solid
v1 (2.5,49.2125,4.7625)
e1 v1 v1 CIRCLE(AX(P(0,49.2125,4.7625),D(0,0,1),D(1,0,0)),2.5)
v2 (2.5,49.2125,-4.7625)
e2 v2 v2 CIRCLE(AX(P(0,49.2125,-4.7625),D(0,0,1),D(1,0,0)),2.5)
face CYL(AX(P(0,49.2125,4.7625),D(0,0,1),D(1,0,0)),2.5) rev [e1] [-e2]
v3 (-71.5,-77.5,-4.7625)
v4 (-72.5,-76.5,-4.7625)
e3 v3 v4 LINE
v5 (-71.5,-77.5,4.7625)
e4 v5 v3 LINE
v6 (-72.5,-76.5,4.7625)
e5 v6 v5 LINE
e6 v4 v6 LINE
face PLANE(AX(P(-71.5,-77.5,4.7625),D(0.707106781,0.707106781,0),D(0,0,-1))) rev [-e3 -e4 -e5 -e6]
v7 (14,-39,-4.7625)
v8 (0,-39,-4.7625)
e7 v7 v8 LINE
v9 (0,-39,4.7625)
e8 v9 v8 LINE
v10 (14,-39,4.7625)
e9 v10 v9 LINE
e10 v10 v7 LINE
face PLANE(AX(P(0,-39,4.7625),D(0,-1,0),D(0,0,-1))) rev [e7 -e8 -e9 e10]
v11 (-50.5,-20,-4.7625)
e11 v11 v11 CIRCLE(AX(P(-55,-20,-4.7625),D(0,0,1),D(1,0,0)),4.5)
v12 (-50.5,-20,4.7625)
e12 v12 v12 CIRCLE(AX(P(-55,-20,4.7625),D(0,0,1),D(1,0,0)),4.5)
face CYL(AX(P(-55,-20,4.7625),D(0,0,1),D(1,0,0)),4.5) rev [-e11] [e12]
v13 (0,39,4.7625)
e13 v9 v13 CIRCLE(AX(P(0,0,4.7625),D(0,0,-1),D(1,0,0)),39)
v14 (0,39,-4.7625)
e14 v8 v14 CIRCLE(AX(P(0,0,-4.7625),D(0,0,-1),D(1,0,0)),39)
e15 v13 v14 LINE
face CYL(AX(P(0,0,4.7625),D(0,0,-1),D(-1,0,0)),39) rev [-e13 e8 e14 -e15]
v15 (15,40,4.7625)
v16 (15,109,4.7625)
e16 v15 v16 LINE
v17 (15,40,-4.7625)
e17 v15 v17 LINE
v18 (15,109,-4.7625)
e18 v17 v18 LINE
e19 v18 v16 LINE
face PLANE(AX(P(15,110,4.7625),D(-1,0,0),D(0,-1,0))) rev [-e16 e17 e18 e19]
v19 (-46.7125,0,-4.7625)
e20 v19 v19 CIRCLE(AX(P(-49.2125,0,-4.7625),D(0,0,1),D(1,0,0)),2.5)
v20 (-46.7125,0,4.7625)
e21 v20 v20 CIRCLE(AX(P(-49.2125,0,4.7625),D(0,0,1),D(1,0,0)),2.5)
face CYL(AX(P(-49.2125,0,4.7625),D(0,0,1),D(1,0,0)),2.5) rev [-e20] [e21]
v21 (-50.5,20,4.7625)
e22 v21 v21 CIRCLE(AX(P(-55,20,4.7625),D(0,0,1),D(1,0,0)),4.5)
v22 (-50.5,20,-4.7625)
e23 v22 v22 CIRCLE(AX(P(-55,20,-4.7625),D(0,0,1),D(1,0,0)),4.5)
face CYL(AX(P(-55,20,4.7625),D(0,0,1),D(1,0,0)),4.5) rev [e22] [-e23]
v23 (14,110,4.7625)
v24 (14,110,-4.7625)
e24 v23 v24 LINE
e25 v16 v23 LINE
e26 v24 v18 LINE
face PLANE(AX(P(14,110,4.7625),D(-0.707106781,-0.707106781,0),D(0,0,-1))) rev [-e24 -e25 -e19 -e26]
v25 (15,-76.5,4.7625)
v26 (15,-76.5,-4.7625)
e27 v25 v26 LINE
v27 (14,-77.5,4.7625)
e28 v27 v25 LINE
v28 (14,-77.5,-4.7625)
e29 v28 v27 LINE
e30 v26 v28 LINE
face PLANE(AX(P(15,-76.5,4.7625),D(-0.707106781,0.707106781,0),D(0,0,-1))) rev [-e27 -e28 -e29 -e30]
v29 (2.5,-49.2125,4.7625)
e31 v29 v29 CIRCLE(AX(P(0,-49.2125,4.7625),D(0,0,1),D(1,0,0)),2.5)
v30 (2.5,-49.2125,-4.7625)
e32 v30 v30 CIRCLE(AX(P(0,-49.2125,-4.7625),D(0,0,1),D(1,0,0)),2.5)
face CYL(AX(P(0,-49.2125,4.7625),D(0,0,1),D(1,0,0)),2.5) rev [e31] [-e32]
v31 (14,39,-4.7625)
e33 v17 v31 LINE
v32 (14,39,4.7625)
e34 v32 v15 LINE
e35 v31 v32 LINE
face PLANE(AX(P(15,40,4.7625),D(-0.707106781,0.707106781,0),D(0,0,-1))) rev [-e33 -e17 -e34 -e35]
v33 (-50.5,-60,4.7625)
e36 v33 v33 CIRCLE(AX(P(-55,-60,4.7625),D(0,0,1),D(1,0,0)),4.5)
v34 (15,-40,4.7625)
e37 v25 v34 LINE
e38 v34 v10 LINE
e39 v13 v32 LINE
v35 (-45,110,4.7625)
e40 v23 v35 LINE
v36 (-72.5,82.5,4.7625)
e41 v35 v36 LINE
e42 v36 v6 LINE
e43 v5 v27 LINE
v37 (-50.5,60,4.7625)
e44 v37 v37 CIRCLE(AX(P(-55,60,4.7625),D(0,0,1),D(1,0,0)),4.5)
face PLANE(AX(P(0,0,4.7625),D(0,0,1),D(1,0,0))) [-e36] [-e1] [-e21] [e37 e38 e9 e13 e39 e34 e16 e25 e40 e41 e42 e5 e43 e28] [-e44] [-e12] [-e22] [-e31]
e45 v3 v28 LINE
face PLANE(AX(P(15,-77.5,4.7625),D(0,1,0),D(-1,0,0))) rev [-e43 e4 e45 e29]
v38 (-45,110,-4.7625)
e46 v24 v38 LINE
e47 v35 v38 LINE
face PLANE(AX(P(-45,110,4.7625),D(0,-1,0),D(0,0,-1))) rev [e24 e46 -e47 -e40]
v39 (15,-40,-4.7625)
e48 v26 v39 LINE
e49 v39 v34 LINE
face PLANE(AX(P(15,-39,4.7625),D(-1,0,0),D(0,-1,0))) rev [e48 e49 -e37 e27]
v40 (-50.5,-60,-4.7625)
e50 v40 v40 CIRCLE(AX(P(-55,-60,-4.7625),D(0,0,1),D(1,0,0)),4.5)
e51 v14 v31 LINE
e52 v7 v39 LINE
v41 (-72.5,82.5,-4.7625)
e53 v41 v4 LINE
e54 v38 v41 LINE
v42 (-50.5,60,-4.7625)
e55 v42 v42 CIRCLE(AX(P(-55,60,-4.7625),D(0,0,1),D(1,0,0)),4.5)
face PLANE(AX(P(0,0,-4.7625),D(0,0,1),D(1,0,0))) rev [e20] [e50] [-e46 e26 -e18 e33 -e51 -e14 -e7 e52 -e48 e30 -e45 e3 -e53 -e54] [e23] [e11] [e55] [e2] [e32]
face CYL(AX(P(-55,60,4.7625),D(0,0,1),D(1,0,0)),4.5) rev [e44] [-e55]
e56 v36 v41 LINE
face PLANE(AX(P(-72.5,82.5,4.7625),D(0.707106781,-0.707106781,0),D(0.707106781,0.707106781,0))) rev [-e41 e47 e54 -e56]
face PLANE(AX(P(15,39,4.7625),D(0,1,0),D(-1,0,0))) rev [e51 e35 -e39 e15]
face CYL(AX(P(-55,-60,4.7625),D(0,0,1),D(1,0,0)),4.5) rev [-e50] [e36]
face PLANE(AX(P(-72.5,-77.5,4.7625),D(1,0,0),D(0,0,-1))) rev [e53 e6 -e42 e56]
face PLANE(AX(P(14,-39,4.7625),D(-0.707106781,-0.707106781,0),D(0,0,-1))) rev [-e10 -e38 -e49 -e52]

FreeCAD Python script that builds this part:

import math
import FreeCAD as App
import Part
import Sketcher
Q = App.Units.Quantity


def edges_at(feature, points):
    """Names of the edges that pass closest to the given points."""
    edges = feature.Shape.Edges
    near = lambda p: min(range(len(edges)), key=lambda i: edges[i].distToShape(Part.Vertex(*p))[0])
    return sorted({f"Edge{near(p) + 1}" for p in points})

doc = App.newDocument("Part")
params = doc.addObject("Spreadsheet::Sheet", "Params")
for row, (alias, value) in enumerate([
    ("sketch1_radius", "39 mm"),
    ("sketch1_width", "15 mm"),
    ("sketch1_width2", "60 mm"),
    ("sketch1_height", "71 mm"),
    ("sketch1_height2", "160 mm"),
    ("pad1_length", "9.525 mm"),
    ("sketch2_diameter", "9 mm"),
    ("hole_diameter", "9 mm"),
    ("sketch3_diameter", "5 mm"),
    ("hole2_diameter", "5 mm"),
    ("chamfer_size", "1 mm"),
], start=1):
    params.set(f"A{row}", alias)
    params.set(f"B{row}", "=" + value)
    params.setAlias(f"B{row}", alias)

body = doc.addObject("PartDesign::Body", "Body")

sketch1 = doc.addObject("Sketcher::SketchObject", "Sketch")
body.addObject(sketch1)
sketch1.AttachmentSupport = (doc.XY_Plane, [""])
sketch1.MapMode = "FlatFace"
sketch1.addGeometry([
    Part.LineSegment(App.Vector(15, -39, 0), App.Vector(0, -39, 0)),
    Part.ArcOfCircle(Part.Circle(App.Vector(0, 0, 0), App.Vector(0, 0, 1), 39), math.radians(90), math.radians(270)),
    Part.LineSegment(App.Vector(0, 39, 0), App.Vector(15, 39, 0)),
    Part.LineSegment(App.Vector(15, 39, 0), App.Vector(15, 110, 0)),
    Part.LineSegment(App.Vector(15, 110, 0), App.Vector(-45, 110, 0)),
    Part.LineSegment(App.Vector(-45, 110, 0), App.Vector(-72, 82, 0)),
    Part.LineSegment(App.Vector(-72, 82, 0), App.Vector(-72, -78, 0)),
    Part.LineSegment(App.Vector(-72, -78, 0), App.Vector(15, -78, 0)),
    Part.LineSegment(App.Vector(15, -78, 0), App.Vector(15, -39, 0)),
], False)
sketch1.addConstraint([
    Sketcher.Constraint("Tangent", 0, 2, 1, 2),
    Sketcher.Constraint("Tangent", 1, 1, 2, 1),
    Sketcher.Constraint("Coincident", 2, 2, 3, 1),
    Sketcher.Constraint("Coincident", 3, 2, 4, 1),
    Sketcher.Constraint("Coincident", 4, 2, 5, 1),
    Sketcher.Constraint("Coincident", 5, 2, 6, 1),
    Sketcher.Constraint("Coincident", 6, 2, 7, 1),
    Sketcher.Constraint("Coincident", 7, 2, 8, 1),
    Sketcher.Constraint("Coincident", 8, 2, 0, 1),
    Sketcher.Constraint("Horizontal", 0),
    Sketcher.Constraint("Horizontal", 2),
    Sketcher.Constraint("Vertical", 3),
    Sketcher.Constraint("Horizontal", 4),
    Sketcher.Constraint("Vertical", 6),
    Sketcher.Constraint("Horizontal", 7),
    Sketcher.Constraint("Vertical", 8),
    Sketcher.Constraint("Coincident", 1, 3, -1, 1),
    Sketcher.Constraint("Vertical", 3, 2, 7, 2),
    Sketcher.Constraint("Radius", 1, 39.0),
    Sketcher.Constraint("DistanceX", 0, 2, 0, 1, 15.0),
    Sketcher.Constraint("DistanceX", 4, 2, 4, 1, 60.0),
    Sketcher.Constraint("DistanceY", 3, 1, 3, 2, 71.0),
    Sketcher.Constraint("DistanceY", 6, 2, 6, 1, 160.0),
    Sketcher.Constraint("Angle", 5, Q("-135 deg")),
    Sketcher.Constraint("DistanceX", 7, 1, 7, 2, 87.5),
])
sketch1.setExpression("Constraints[18]", "Params.sketch1_radius")
sketch1.setExpression("Constraints[19]", "Params.sketch1_width")
sketch1.setExpression("Constraints[20]", "Params.sketch1_width2")
sketch1.setExpression("Constraints[21]", "Params.sketch1_height")
sketch1.setExpression("Constraints[22]", "Params.sketch1_height2")
pad1 = doc.addObject("PartDesign::Pad", "Pad")
body.addObject(pad1)
pad1.Profile = sketch1
pad1.setExpression("Length", "Params.pad1_length")
pad1.Midplane = True

sketch2 = doc.addObject("Sketcher::SketchObject", "Sketch001")
body.addObject(sketch2)
sketch2.AttachmentSupport = (doc.XY_Plane, [""])
sketch2.MapMode = "FlatFace"
sketch2.AttachmentOffset = App.Placement(App.Vector(0, 0, 4.7625), App.Rotation())
sketch2.addGeometry([
    Part.Circle(App.Vector(-55, 60, 0), App.Vector(0, 0, 1), 4.5),
    Part.Circle(App.Vector(-55, 20, 0), App.Vector(0, 0, 1), 4.5),
    Part.Circle(App.Vector(-55, -20, 0), App.Vector(0, 0, 1), 4.5),
    Part.Circle(App.Vector(-55, -60, 0), App.Vector(0, 0, 1), 4.5),
], False)
sketch2.addConstraint([
    Sketcher.Constraint("Equal", 0, 1),
    Sketcher.Constraint("Equal", 1, 2),
    Sketcher.Constraint("Equal", 2, 3),
    Sketcher.Constraint("Symmetric", 1, 3, 2, 3, -1),
    Sketcher.Constraint("Symmetric", 0, 3, 3, 3, -1),
    Sketcher.Constraint("Vertical", 0, 3, 1, 3),
    Sketcher.Constraint("Diameter", 0, 9.0),
    Sketcher.Constraint("DistanceX", 0, 3, -1, 1, 55.0),
    Sketcher.Constraint("DistanceY", -1, 1, 0, 3, 60.0),
    Sketcher.Constraint("DistanceY", -1, 1, 1, 3, 20.0),
])
sketch2.setExpression("Constraints[6]", "Params.sketch2_diameter")
doc.recompute()
hole = doc.addObject("PartDesign::Hole", "Hole")
body.addObject(hole)
hole.Profile = sketch2
hole.ThreadType = "None"
hole.setExpression("Diameter", "Params.hole_diameter")
hole.DepthType = "ThroughAll"

sketch3 = doc.addObject("Sketcher::SketchObject", "Sketch002")
body.addObject(sketch3)
sketch3.AttachmentSupport = (doc.XY_Plane, [""])
sketch3.MapMode = "FlatFace"
sketch3.AttachmentOffset = App.Placement(App.Vector(0, 0, 4.7625), App.Rotation())
sketch3.addGeometry([
    Part.Circle(App.Vector(0, 49.2, 0), App.Vector(0, 0, 1), 2.5),
    Part.Circle(App.Vector(-49.2, 0, 0), App.Vector(0, 0, 1), 2.5),
    Part.Circle(App.Vector(0, -49.2, 0), App.Vector(0, 0, 1), 2.5),
], False)
sketch3.addConstraint([
    Sketcher.Constraint("Equal", 0, 1),
    Sketcher.Constraint("Equal", 1, 2),
    Sketcher.Constraint("Symmetric", 0, 3, 2, 3, -1, 1),
    Sketcher.Constraint("PointOnObject", 0, 3, -2),
    Sketcher.Constraint("PointOnObject", 1, 3, -1),
    Sketcher.Constraint("Diameter", 0, 5.0),
    Sketcher.Constraint("DistanceY", 2, 3, 0, 3, 98.425),
    Sketcher.Constraint("DistanceX", 1, 3, -1, 1, 49.2125),
])
sketch3.setExpression("Constraints[5]", "Params.sketch3_diameter")
doc.recompute()
hole2 = doc.addObject("PartDesign::Hole", "Hole001")
body.addObject(hole2)
hole2.Profile = sketch3
hole2.ThreadType = "None"
hole2.setExpression("Diameter", "Params.hole2_diameter")
hole2.DepthType = "ThroughAll"
doc.recompute()

chamfer = doc.addObject("PartDesign::Chamfer", "Chamfer")
body.addObject(chamfer)
chamfer.Base = (hole2, edges_at(hole2, [
    (15, -39, 0),
    (15, -77.5, 0),
    (-72.5, -77.5, 0),
    (15, 110, 0),
    (15, 39, 0),
]))
chamfer.setExpression("Size", "Params.chamfer_size")

doc.recompute()
